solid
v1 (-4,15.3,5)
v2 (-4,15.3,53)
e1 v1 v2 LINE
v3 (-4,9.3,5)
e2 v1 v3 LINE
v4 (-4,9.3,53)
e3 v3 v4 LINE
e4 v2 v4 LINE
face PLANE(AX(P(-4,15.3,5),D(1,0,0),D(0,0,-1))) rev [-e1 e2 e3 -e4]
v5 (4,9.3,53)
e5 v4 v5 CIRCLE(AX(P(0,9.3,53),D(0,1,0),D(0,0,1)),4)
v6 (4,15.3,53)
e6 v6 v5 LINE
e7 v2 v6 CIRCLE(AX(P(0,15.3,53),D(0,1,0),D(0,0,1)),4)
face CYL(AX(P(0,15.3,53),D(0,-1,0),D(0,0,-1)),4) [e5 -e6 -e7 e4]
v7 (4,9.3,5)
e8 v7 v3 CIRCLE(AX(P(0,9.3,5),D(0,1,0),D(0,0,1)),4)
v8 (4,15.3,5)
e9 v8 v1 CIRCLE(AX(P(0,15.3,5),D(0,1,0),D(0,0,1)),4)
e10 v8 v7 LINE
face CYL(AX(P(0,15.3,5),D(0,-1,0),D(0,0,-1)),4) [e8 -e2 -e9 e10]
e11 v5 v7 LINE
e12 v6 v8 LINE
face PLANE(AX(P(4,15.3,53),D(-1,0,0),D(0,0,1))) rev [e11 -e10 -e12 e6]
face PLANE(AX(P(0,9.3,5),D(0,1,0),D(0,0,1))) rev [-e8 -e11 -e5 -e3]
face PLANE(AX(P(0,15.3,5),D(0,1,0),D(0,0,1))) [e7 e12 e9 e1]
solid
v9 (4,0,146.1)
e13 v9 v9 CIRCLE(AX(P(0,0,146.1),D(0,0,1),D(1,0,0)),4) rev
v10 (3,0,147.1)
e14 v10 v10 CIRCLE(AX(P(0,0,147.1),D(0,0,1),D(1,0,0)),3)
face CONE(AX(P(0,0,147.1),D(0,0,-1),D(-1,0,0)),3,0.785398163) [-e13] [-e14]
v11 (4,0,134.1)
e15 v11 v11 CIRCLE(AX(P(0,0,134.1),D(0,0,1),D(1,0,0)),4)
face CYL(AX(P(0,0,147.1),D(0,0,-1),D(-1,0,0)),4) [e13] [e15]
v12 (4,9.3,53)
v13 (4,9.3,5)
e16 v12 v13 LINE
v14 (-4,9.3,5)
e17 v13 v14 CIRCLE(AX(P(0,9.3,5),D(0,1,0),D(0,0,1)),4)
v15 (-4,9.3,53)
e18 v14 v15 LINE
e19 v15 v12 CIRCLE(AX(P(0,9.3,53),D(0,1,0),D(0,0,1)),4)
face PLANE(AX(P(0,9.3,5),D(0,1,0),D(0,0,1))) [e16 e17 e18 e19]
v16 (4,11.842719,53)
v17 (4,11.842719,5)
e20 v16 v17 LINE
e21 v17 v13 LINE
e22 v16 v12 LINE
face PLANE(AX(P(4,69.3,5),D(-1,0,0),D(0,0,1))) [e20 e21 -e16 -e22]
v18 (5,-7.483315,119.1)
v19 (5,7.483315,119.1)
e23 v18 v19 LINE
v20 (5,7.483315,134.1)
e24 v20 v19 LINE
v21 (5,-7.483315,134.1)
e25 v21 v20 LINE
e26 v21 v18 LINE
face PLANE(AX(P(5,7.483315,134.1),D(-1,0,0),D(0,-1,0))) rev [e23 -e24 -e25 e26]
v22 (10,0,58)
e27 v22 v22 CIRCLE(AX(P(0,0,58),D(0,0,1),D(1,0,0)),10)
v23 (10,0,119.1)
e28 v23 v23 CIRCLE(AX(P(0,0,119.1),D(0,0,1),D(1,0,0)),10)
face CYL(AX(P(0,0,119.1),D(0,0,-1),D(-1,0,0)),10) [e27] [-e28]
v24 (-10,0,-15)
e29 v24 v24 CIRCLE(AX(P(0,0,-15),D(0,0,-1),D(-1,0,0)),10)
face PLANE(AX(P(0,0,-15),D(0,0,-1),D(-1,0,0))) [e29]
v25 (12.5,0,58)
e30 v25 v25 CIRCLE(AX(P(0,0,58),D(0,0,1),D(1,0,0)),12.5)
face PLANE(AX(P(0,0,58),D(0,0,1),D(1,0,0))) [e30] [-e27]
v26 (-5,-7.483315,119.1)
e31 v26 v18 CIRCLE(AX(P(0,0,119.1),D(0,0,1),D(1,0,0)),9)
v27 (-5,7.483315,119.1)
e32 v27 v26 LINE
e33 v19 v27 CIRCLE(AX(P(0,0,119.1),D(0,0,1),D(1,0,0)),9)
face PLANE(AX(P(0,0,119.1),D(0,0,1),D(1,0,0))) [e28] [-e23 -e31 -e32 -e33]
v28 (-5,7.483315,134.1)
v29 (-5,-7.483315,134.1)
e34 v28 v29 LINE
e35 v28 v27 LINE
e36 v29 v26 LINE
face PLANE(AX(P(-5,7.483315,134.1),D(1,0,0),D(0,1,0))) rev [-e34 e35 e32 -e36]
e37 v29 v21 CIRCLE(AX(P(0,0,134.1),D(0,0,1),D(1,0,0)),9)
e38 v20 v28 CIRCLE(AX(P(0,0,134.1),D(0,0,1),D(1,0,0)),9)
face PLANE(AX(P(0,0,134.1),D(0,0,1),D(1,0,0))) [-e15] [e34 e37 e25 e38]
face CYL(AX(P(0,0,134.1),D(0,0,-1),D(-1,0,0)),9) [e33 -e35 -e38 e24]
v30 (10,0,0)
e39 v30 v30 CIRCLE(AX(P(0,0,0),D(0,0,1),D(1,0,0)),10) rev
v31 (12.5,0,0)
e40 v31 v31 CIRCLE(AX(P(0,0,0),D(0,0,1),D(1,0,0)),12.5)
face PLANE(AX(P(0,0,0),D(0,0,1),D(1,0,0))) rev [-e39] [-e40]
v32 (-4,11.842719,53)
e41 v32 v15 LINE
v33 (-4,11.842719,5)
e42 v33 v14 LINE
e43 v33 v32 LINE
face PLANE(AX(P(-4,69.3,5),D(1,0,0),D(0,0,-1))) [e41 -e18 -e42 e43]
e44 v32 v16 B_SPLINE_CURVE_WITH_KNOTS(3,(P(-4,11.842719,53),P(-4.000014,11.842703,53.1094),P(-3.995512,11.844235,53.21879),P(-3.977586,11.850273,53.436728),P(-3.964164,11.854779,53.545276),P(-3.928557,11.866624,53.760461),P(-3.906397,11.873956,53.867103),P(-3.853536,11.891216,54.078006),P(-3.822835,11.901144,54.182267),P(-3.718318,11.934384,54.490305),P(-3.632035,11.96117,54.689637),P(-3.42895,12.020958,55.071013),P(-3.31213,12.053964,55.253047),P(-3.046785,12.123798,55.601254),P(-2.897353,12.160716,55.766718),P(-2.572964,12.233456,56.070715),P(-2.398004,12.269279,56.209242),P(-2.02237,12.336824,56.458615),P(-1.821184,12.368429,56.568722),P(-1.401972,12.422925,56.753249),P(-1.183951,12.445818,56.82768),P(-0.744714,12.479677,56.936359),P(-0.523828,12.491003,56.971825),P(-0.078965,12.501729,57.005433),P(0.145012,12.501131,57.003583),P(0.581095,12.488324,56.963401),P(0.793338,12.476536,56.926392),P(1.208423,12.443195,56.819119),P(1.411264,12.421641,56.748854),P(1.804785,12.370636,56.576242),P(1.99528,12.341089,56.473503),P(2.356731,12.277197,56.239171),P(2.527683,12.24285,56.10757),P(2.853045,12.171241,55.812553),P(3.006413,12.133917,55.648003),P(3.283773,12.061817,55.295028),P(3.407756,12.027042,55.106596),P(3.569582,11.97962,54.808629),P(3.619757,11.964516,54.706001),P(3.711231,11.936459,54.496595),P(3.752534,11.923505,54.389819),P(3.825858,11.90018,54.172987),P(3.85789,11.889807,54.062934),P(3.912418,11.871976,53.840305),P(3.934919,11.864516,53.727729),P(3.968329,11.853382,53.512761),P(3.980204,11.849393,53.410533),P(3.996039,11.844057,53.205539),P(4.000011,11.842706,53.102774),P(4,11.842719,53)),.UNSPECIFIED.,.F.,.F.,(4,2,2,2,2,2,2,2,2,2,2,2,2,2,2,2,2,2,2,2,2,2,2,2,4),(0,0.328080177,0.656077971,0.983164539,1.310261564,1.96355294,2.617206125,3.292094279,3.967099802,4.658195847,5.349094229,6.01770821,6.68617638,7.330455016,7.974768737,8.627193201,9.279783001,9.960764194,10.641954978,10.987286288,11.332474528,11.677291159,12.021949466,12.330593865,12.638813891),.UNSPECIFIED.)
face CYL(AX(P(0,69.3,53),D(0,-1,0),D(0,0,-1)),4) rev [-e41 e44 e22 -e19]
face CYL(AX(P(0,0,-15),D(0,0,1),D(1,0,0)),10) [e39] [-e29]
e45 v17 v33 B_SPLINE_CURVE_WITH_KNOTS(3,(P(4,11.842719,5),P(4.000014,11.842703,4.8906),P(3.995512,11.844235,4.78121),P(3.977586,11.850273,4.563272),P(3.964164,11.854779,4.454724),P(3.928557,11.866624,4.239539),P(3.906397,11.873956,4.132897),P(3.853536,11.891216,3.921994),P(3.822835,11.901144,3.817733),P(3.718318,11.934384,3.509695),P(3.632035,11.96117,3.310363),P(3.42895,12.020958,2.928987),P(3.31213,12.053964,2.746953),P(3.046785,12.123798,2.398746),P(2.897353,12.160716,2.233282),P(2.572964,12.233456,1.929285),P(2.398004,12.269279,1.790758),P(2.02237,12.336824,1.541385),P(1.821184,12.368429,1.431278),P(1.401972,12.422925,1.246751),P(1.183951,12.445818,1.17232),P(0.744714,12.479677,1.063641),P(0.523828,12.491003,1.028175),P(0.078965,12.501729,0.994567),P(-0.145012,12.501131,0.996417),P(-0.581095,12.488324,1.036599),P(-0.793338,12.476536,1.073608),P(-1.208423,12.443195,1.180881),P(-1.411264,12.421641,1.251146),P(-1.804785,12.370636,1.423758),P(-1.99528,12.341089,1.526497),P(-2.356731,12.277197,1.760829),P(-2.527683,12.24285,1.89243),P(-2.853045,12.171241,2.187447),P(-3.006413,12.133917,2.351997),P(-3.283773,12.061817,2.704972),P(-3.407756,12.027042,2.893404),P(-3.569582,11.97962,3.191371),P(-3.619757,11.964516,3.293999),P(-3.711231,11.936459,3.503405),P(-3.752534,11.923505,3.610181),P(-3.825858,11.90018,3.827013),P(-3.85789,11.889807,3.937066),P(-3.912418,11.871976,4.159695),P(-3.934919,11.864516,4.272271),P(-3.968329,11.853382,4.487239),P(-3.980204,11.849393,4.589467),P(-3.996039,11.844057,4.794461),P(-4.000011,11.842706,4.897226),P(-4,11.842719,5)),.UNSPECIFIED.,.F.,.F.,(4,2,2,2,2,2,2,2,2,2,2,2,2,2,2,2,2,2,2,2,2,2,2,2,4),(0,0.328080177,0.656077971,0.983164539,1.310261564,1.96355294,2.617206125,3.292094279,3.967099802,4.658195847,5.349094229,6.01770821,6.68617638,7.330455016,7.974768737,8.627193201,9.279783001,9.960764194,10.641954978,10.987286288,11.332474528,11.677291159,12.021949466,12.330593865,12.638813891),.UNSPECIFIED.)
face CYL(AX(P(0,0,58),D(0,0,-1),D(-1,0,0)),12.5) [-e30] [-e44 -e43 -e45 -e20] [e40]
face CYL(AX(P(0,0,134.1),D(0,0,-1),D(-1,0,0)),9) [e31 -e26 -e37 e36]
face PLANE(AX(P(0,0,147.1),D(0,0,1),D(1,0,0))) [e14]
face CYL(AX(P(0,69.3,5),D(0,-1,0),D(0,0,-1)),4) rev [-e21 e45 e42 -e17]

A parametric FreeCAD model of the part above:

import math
import FreeCAD as App
import Part
import Sketcher

V = App.Vector
Q = App.Units.Quantity


def edges_at(feature, points):
    """Names of the edges that pass closest to the given points."""
    edges = feature.Shape.Edges
    near = lambda p: min(range(len(edges)), key=lambda i: edges[i].distToShape(Part.Vertex(*p))[0])
    return sorted({f"Edge{near(p) + 1}" for p in points})

doc = App.newDocument("Part")
body = doc.addObject("PartDesign::Body", "Body")

# Sketch on XY plane
sketch1 = body.newObject("Sketcher::SketchObject", "Sketch")
sketch1.AttachmentSupport = (doc.getObject("XY_Plane"), [""])
sketch1.MapMode = "FlatFace"
sketch1.addGeometry(Part.Circle(V(0, 0, 0), V(0, 0, 1), 12.5), False)
sketch1.addConstraint([
    Sketcher.Constraint("Coincident", 0, 3, -1, 1),
    Sketcher.Constraint("Diameter", 0, Q("25 mm")),
])
pad1 = body.newObject("PartDesign::Pad", "Pad")
pad1.Profile = sketch1
pad1.Length = 58

# Sketch on XZ plane
sketch2 = body.newObject("Sketcher::SketchObject", "Sketch001")
sketch2.AttachmentSupport = (doc.getObject("XZ_Plane"), [""])
sketch2.MapMode = "FlatFace"
sketch2.AttachmentOffset = App.Placement(V(0, 0, -9.3), App.Rotation())
sketch2.addGeometry([
    Part.LineSegment(V(4, 53, 0), V(4, 5, 0)),
    Part.ArcOfCircle(Part.Circle(V(0, 5, 0), V(0, 0, 1), 4), math.radians(180), math.radians(360)),
    Part.LineSegment(V(-4, 5, 0), V(-4, 53, 0)),
    Part.ArcOfCircle(Part.Circle(V(0, 53, 0), V(0, 0, 1), 4), math.radians(0), math.radians(180)),
], False)
sketch2.addConstraint([
    Sketcher.Constraint("Tangent", 0, 2, 1, 2),
    Sketcher.Constraint("Tangent", 1, 1, 2, 1),
    Sketcher.Constraint("Tangent", 2, 2, 3, 2),
    Sketcher.Constraint("Tangent", 3, 1, 0, 1),
    Sketcher.Constraint("Vertical", 0),
    Sketcher.Constraint("Vertical", 2),
    Sketcher.Constraint("PointOnObject", 1, 3, -2),
    Sketcher.Constraint("Radius", 1, Q("4 mm")),
    Sketcher.Constraint("DistanceY", 0, 2, 0, 1, Q("48 mm")),
    Sketcher.Constraint("DistanceY", -1, 1, 1, 3, Q("5 mm")),
])
pocket1 = body.newObject("PartDesign::Pocket", "Pocket")
pocket1.Profile = sketch2
pocket1.Length = 60

# Sketch on XY plane
sketch3 = body.newObject("Sketcher::SketchObject", "Sketch002")
sketch3.AttachmentSupport = (doc.getObject("XY_Plane"), [""])
sketch3.MapMode = "FlatFace"
sketch3.addGeometry(Part.Circle(V(0, 0, 0), V(0, 0, 1), 10), False)
sketch3.addConstraint([
    Sketcher.Constraint("Coincident", 0, 3, -1, 1),
    Sketcher.Constraint("Diameter", 0, Q("20 mm")),
])
pad2 = body.newObject("PartDesign::Pad", "Pad001")
pad2.Profile = sketch3
pad2.Length = 15
pad2.Reversed = True

# Sketch on XY plane
sketch4 = body.newObject("Sketcher::SketchObject", "Sketch003")
sketch4.AttachmentSupport = (doc.getObject("XY_Plane"), [""])
sketch4.MapMode = "FlatFace"
sketch4.AttachmentOffset = App.Placement(V(0, 0, 58), App.Rotation())
sketch4.addGeometry(Part.Circle(V(0, 0, 0), V(0, 0, 1), 10), False)
sketch4.addConstraint([
    Sketcher.Constraint("Coincident", 0, 3, -1, 1),
    Sketcher.Constraint("Diameter", 0, Q("20 mm")),
])
pad3 = body.newObject("PartDesign::Pad", "Pad002")
pad3.Profile = sketch4
pad3.Length = 61.1

# Sketch on XY plane
sketch5 = body.newObject("Sketcher::SketchObject", "Sketch004")
sketch5.AttachmentSupport = (doc.getObject("XY_Plane"), [""])
sketch5.MapMode = "FlatFace"
sketch5.AttachmentOffset = App.Placement(V(0, 0, 119.1), App.Rotation())
sketch5.addGeometry([
    Part.LineSegment(V(-5, 7.483315, 0), V(-5, -7.483315, 0)),
    Part.ArcOfCircle(Part.Circle(V(0, 0, 0), V(0, 0, 1), 9), math.radians(-123.748989), math.radians(-56.251011)),
    Part.LineSegment(V(5, -7.483315, 0), V(5, 7.483315, 0)),
    Part.ArcOfCircle(Part.Circle(V(0, 0, 0), V(0, 0, 1), 9), math.radians(56.251011), math.radians(123.748989)),
], False)
sketch5.addConstraint([
    Sketcher.Constraint("Coincident", 0, 2, 1, 1),
    Sketcher.Constraint("Coincident", 1, 2, 2, 1),
    Sketcher.Constraint("Coincident", 2, 2, 3, 1),
    Sketcher.Constraint("Coincident", 3, 2, 0, 1),
    Sketcher.Constraint("Vertical", 0),
    Sketcher.Constraint("Vertical", 2),
    Sketcher.Constraint("Coincident", 1, 3, -1, 1),
    Sketcher.Constraint("Coincident", 3, 3, -1, 1),
    Sketcher.Constraint("Equal", 1, 3),
    Sketcher.Constraint("Horizontal", 0, 2, 1, 2),
    Sketcher.Constraint("Radius", 1, Q("9 mm")),
    Sketcher.Constraint("DistanceX", 0, 2, -1, 1, Q("5 mm")),
])
pad4 = body.newObject("PartDesign::Pad", "Pad003")
pad4.Profile = sketch5
pad4.Length = 15

# Sketch on XY plane
sketch6 = body.newObject("Sketcher::SketchObject", "Sketch005")
sketch6.AttachmentSupport = (doc.getObject("XY_Plane"), [""])
sketch6.MapMode = "FlatFace"
sketch6.AttachmentOffset = App.Placement(V(0, 0, 134.1), App.Rotation())
sketch6.addGeometry(Part.Circle(V(0, 0, 0), V(0, 0, 1), 4), False)
sketch6.addConstraint([
    Sketcher.Constraint("Coincident", 0, 3, -1, 1),
    Sketcher.Constraint("Diameter", 0, Q("8 mm")),
])
pad5 = body.newObject("PartDesign::Pad", "Pad004")
pad5.Profile = sketch6
pad5.Length = 13
doc.recompute()

chamfer = body.newObject("PartDesign::Chamfer", "Chamfer")
chamfer.Base = (pad5, edges_at(pad5, [(-4, 0, 147.1)]))
chamfer.Size = 1
body2 = doc.addObject("PartDesign::Body", "Body001")

# Sketch on XZ plane
sketch7 = body2.newObject("Sketcher::SketchObject", "Sketch006")
sketch7.AttachmentSupport = (doc.getObject("XZ_Plane001"), [""])
sketch7.MapMode = "FlatFace"
sketch7.AttachmentOffset = App.Placement(V(0, 0, -9.3), App.Rotation())
sketch7.addGeometry([
    Part.LineSegment(V(-4, 5, 0), V(-4, 53, 0)),
    Part.ArcOfCircle(Part.Circle(V(0, 53, 0), V(0, 0, 1), 4), math.radians(0), math.radians(180)),
    Part.LineSegment(V(4, 53, 0), V(4, 5, 0)),
    Part.ArcOfCircle(Part.Circle(V(0, 5, 0), V(0, 0, 1), 4), math.radians(180), math.radians(360)),
], False)
sketch7.addConstraint([
    Sketcher.Constraint("Tangent", 0, 2, 1, 2),
    Sketcher.Constraint("Tangent", 1, 1, 2, 1),
    Sketcher.Constraint("Tangent", 2, 2, 3, 2),
    Sketcher.Constraint("Tangent", 3, 1, 0, 1),
    Sketcher.Constraint("Vertical", 0),
    Sketcher.Constraint("Vertical", 2),
    Sketcher.Constraint("PointOnObject", 1, 3, -2),
    Sketcher.Constraint("Radius", 1, Q("4 mm")),
    Sketcher.Constraint("DistanceY", 0, 1, 0, 2, Q("48 mm")),
    Sketcher.Constraint("DistanceY", -1, 1, 1, 3, Q("53 mm")),
])
pad6 = body2.newObject("PartDesign::Pad", "Pad005")
pad6.Profile = sketch7
pad6.Length = 6
pad6.Reversed = True

doc.recompute()
